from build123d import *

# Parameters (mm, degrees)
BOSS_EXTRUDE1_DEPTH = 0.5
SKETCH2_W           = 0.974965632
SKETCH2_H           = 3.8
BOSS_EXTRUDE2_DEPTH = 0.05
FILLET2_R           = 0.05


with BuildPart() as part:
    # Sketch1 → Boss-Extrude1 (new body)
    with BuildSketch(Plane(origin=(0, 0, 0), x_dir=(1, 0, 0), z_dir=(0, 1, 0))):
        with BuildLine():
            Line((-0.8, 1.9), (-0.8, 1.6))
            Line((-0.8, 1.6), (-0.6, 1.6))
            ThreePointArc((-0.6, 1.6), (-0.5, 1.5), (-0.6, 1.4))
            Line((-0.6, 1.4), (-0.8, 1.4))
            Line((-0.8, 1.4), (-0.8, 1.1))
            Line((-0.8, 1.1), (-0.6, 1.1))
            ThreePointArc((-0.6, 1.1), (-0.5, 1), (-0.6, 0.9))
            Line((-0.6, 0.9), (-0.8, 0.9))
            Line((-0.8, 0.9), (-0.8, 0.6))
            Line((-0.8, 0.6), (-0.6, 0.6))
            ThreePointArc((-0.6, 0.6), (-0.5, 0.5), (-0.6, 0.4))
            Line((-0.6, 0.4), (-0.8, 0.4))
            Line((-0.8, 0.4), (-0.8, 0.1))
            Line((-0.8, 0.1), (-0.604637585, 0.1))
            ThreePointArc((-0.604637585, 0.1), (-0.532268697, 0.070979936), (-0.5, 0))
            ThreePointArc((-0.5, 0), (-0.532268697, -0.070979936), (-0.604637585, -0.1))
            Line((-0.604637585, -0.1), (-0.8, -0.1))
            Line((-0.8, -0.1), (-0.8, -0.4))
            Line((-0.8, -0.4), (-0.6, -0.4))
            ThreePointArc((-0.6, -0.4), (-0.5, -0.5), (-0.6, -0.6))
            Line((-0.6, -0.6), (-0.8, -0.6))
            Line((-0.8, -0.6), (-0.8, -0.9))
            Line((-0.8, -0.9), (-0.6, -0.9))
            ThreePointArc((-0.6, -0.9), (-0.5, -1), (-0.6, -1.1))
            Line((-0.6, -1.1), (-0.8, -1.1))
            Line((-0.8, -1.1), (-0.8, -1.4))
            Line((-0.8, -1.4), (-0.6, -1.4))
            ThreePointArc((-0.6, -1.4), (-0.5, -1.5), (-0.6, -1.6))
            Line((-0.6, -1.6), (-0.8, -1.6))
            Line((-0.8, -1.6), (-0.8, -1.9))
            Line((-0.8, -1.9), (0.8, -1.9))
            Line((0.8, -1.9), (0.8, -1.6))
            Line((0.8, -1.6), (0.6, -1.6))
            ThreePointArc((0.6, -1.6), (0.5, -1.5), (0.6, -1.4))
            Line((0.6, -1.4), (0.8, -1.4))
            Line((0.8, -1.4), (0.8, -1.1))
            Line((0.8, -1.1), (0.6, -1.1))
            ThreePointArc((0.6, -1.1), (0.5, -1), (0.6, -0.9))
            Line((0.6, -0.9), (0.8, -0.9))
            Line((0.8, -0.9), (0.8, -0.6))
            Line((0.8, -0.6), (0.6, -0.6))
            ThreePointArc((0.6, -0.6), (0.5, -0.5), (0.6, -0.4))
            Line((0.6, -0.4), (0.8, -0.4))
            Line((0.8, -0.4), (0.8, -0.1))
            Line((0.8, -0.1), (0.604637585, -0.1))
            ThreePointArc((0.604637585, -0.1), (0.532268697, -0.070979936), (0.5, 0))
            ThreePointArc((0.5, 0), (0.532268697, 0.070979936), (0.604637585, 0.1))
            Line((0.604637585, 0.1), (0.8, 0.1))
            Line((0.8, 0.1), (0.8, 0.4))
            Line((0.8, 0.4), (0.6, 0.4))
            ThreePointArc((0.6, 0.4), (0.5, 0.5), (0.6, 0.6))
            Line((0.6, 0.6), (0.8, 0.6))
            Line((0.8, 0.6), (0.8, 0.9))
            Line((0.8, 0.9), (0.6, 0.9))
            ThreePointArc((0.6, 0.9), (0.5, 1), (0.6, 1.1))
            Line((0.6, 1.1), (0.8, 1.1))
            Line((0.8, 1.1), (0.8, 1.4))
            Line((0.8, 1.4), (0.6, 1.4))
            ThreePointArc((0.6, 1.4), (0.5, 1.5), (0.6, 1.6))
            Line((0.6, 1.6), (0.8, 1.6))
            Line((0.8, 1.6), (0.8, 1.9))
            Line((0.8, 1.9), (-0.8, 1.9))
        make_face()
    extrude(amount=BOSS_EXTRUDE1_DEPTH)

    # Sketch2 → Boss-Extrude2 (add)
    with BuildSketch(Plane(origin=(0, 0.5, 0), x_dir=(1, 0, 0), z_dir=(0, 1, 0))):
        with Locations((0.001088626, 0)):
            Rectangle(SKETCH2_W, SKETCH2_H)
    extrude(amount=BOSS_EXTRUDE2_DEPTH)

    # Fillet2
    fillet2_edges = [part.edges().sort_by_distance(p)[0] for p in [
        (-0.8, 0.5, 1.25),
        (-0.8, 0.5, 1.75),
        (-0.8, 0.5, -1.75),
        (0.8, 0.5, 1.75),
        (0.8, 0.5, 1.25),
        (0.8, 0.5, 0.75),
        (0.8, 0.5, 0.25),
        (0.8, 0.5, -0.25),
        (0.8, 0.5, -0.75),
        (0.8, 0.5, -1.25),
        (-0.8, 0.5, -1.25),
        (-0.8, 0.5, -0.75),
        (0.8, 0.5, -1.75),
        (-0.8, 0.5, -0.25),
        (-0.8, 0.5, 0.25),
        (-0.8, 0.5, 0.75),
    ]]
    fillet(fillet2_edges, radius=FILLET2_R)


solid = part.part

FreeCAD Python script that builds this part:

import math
import FreeCAD as App
import Part
import Sketcher


def edges_at(feature, points):
    """Names of the edges that pass closest to the given points."""
    edges = feature.Shape.Edges
    near = lambda p: min(range(len(edges)), key=lambda i: edges[i].distToShape(Part.Vertex(*p))[0])
    return sorted({f"Edge{near(p) + 1}" for p in points})


def add_polygon(sketch, points):
    """Adds a closed chain of lines whose ends are joined by coincident constraints."""
    first, n = sketch.GeometryCount, len(points)
    for a, b in zip(points, points[1:] + points[:1]):
        sketch.addGeometry(Part.LineSegment(App.Vector(*a, 0), App.Vector(*b, 0)), False)
    for i in range(n):
        sketch.addConstraint(Sketcher.Constraint("Coincident", first + i, 2, first + (i + 1) % n, 1))

doc = App.newDocument("Part")
body = doc.addObject("PartDesign::Body", "Body")

# Sketch on XZ plane
sketch1 = body.newObject("Sketcher::SketchObject", "Sketch")
sketch1.AttachmentSupport = (doc.getObject("XZ_Plane"), [""])
sketch1.MapMode = "FlatFace"
sketch1.addGeometry(Part.LineSegment(App.Vector(-0.8, -1.9, 0), App.Vector(-0.8, -1.6, 0)), False)
sketch1.addGeometry(Part.LineSegment(App.Vector(-0.8, -1.6, 0), App.Vector(-0.6, -1.6, 0)), False)
sketch1.addGeometry(Part.ArcOfCircle(Part.Circle(App.Vector(-0.6, -1.5, 0), App.Vector(0, 0, 1), 0.1), math.radians(-90), math.radians(90)), False)
sketch1.addGeometry(Part.LineSegment(App.Vector(-0.6, -1.4, 0), App.Vector(-0.8, -1.4, 0)), False)
sketch1.addGeometry(Part.LineSegment(App.Vector(-0.8, -1.4, 0), App.Vector(-0.8, -1.1, 0)), False)
sketch1.addGeometry(Part.LineSegment(App.Vector(-0.8, -1.1, 0), App.Vector(-0.6, -1.1, 0)), False)
sketch1.addGeometry(Part.ArcOfCircle(Part.Circle(App.Vector(-0.6, -1, 0), App.Vector(0, 0, 1), 0.1), math.radians(-90), math.radians(90)), False)
sketch1.addGeometry(Part.LineSegment(App.Vector(-0.6, -0.9, 0), App.Vector(-0.8, -0.9, 0)), False)
sketch1.addGeometry(Part.LineSegment(App.Vector(-0.8, -0.9, 0), App.Vector(-0.8, -0.6, 0)), False)
sketch1.addGeometry(Part.LineSegment(App.Vector(-0.8, -0.6, 0), App.Vector(-0.6, -0.6, 0)), False)
sketch1.addGeometry(Part.ArcOfCircle(Part.Circle(App.Vector(-0.6, -0.5, 0), App.Vector(0, 0, 1), 0.1), math.radians(-90), math.radians(90)), False)
sketch1.addGeometry(Part.LineSegment(App.Vector(-0.6, -0.4, 0), App.Vector(-0.8, -0.4, 0)), False)
sketch1.addGeometry(Part.LineSegment(App.Vector(-0.8, -0.4, 0), App.Vector(-0.8, -0.1, 0)), False)
sketch1.addGeometry(Part.LineSegment(App.Vector(-0.8, -0.1, 0), App.Vector(-0.604638, -0.1, 0)), False)
sketch1.addGeometry(Part.ArcOfCircle(Part.Circle(App.Vector(-0.604638, 0.004745, 0), App.Vector(0, 0, 1), 0.104745), math.radians(-89.999999), math.radians(-2.59648)), False)
sketch1.addGeometry(Part.ArcOfCircle(Part.Circle(App.Vector(-0.604638, -0.004745, 0), App.Vector(0, 0, 1), 0.104745), math.radians(2.59648), math.radians(89.999999)), False)
sketch1.addGeometry(Part.LineSegment(App.Vector(-0.604638, 0.1, 0), App.Vector(-0.8, 0.1, 0)), False)
sketch1.addGeometry(Part.LineSegment(App.Vector(-0.8, 0.1, 0), App.Vector(-0.8, 0.4, 0)), False)
sketch1.addGeometry(Part.LineSegment(App.Vector(-0.8, 0.4, 0), App.Vector(-0.6, 0.4, 0)), False)
sketch1.addGeometry(Part.ArcOfCircle(Part.Circle(App.Vector(-0.6, 0.5, 0), App.Vector(0, 0, 1), 0.1), math.radians(-90), math.radians(90)), False)
sketch1.addGeometry(Part.LineSegment(App.Vector(-0.6, 0.6, 0), App.Vector(-0.8, 0.6, 0)), False)
sketch1.addGeometry(Part.LineSegment(App.Vector(-0.8, 0.6, 0), App.Vector(-0.8, 0.9, 0)), False)
sketch1.addGeometry(Part.LineSegment(App.Vector(-0.8, 0.9, 0), App.Vector(-0.6, 0.9, 0)), False)
sketch1.addGeometry(Part.ArcOfCircle(Part.Circle(App.Vector(-0.6, 1, 0), App.Vector(0, 0, 1), 0.1), math.radians(-90), math.radians(90)), False)
sketch1.addGeometry(Part.LineSegment(App.Vector(-0.6, 1.1, 0), App.Vector(-0.8, 1.1, 0)), False)
sketch1.addGeometry(Part.LineSegment(App.Vector(-0.8, 1.1, 0), App.Vector(-0.8, 1.4, 0)), False)
sketch1.addGeometry(Part.LineSegment(App.Vector(-0.8, 1.4, 0), App.Vector(-0.6, 1.4, 0)), False)
sketch1.addGeometry(Part.ArcOfCircle(Part.Circle(App.Vector(-0.6, 1.5, 0), App.Vector(0, 0, 1), 0.1), math.radians(-90), math.radians(90)), False)
sketch1.addGeometry(Part.LineSegment(App.Vector(-0.6, 1.6, 0), App.Vector(-0.8, 1.6, 0)), False)
sketch1.addGeometry(Part.LineSegment(App.Vector(-0.8, 1.6, 0), App.Vector(-0.8, 1.9, 0)), False)
sketch1.addGeometry(Part.LineSegment(App.Vector(-0.8, 1.9, 0), App.Vector(0.8, 1.9, 0)), False)
sketch1.addGeometry(Part.LineSegment(App.Vector(0.8, 1.9, 0), App.Vector(0.8, 1.6, 0)), False)
sketch1.addGeometry(Part.LineSegment(App.Vector(0.8, 1.6, 0), App.Vector(0.6, 1.6, 0)), False)
sketch1.addGeometry(Part.ArcOfCircle(Part.Circle(App.Vector(0.6, 1.5, 0), App.Vector(0, 0, 1), 0.1), math.radians(90), math.radians(270)), False)
sketch1.addGeometry(Part.LineSegment(App.Vector(0.6, 1.4, 0), App.Vector(0.8, 1.4, 0)), False)
sketch1.addGeometry(Part.LineSegment(App.Vector(0.8, 1.4, 0), App.Vector(0.8, 1.1, 0)), False)
sketch1.addGeometry(Part.LineSegment(App.Vector(0.8, 1.1, 0), App.Vector(0.6, 1.1, 0)), False)
sketch1.addGeometry(Part.ArcOfCircle(Part.Circle(App.Vector(0.6, 1, 0), App.Vector(0, 0, 1), 0.1), math.radians(90), math.radians(270)), False)
sketch1.addGeometry(Part.LineSegment(App.Vector(0.6, 0.9, 0), App.Vector(0.8, 0.9, 0)), False)
sketch1.addGeometry(Part.LineSegment(App.Vector(0.8, 0.9, 0), App.Vector(0.8, 0.6, 0)), False)
sketch1.addGeometry(Part.LineSegment(App.Vector(0.8, 0.6, 0), App.Vector(0.6, 0.6, 0)), False)
sketch1.addGeometry(Part.ArcOfCircle(Part.Circle(App.Vector(0.6, 0.5, 0), App.Vector(0, 0, 1), 0.1), math.radians(90), math.radians(270)), False)
sketch1.addGeometry(Part.LineSegment(App.Vector(0.6, 0.4, 0), App.Vector(0.8, 0.4, 0)), False)
sketch1.addGeometry(Part.LineSegment(App.Vector(0.8, 0.4, 0), App.Vector(0.8, 0.1, 0)), False)
sketch1.addGeometry(Part.LineSegment(App.Vector(0.8, 0.1, 0), App.Vector(0.604638, 0.1, 0)), False)
sketch1.addGeometry(Part.ArcOfCircle(Part.Circle(App.Vector(0.604638, -0.004745, 0), App.Vector(0, 0, 1), 0.104745), math.radians(90.000001), math.radians(177.40352)), False)
sketch1.addGeometry(Part.ArcOfCircle(Part.Circle(App.Vector(0.604638, 0.004745, 0), App.Vector(0, 0, 1), 0.104745), math.radians(-177.40352), math.radians(-90.000001)), False)
sketch1.addGeometry(Part.LineSegment(App.Vector(0.604638, -0.1, 0), App.Vector(0.8, -0.1, 0)), False)
sketch1.addGeometry(Part.LineSegment(App.Vector(0.8, -0.1, 0), App.Vector(0.8, -0.4, 0)), False)
sketch1.addGeometry(Part.LineSegment(App.Vector(0.8, -0.4, 0), App.Vector(0.6, -0.4, 0)), False)
sketch1.addGeometry(Part.ArcOfCircle(Part.Circle(App.Vector(0.6, -0.5, 0), App.Vector(0, 0, 1), 0.1), math.radians(90), math.radians(270)), False)
sketch1.addGeometry(Part.LineSegment(App.Vector(0.6, -0.6, 0), App.Vector(0.8, -0.6, 0)), False)
sketch1.addGeometry(Part.LineSegment(App.Vector(0.8, -0.6, 0), App.Vector(0.8, -0.9, 0)), False)
sketch1.addGeometry(Part.LineSegment(App.Vector(0.8, -0.9, 0), App.Vector(0.6, -0.9, 0)), False)
sketch1.addGeometry(Part.ArcOfCircle(Part.Circle(App.Vector(0.6, -1, 0), App.Vector(0, 0, 1), 0.1), math.radians(90), math.radians(270)), False)
sketch1.addGeometry(Part.LineSegment(App.Vector(0.6, -1.1, 0), App.Vector(0.8, -1.1, 0)), False)
sketch1.addGeometry(Part.LineSegment(App.Vector(0.8, -1.1, 0), App.Vector(0.8, -1.4, 0)), False)
sketch1.addGeometry(Part.LineSegment(App.Vector(0.8, -1.4, 0), App.Vector(0.6, -1.4, 0)), False)
sketch1.addGeometry(Part.ArcOfCircle(Part.Circle(App.Vector(0.6, -1.5, 0), App.Vector(0, 0, 1), 0.1), math.radians(90), math.radians(270)), False)
sketch1.addGeometry(Part.LineSegment(App.Vector(0.6, -1.6, 0), App.Vector(0.8, -1.6, 0)), False)
sketch1.addGeometry(Part.LineSegment(App.Vector(0.8, -1.6, 0), App.Vector(0.8, -1.9, 0)), False)
sketch1.addGeometry(Part.LineSegment(App.Vector(0.8, -1.9, 0), App.Vector(-0.8, -1.9, 0)), False)
sketch1.addConstraint(Sketcher.Constraint("Coincident", 0, 2, 1, 1))
sketch1.addConstraint(Sketcher.Constraint("Tangent", 1, 2, 2, 1))
sketch1.addConstraint(Sketcher.Constraint("Tangent", 2, 2, 3, 1))
sketch1.addConstraint(Sketcher.Constraint("Coincident", 3, 2, 4, 1))
sketch1.addConstraint(Sketcher.Constraint("Coincident", 4, 2, 5, 1))
sketch1.addConstraint(Sketcher.Constraint("Tangent", 5, 2, 6, 1))
sketch1.addConstraint(Sketcher.Constraint("Tangent", 6, 2, 7, 1))
sketch1.addConstraint(Sketcher.Constraint("Coincident", 7, 2, 8, 1))
sketch1.addConstraint(Sketcher.Constraint("Coincident", 8, 2, 9, 1))
sketch1.addConstraint(Sketcher.Constraint("Tangent", 9, 2, 10, 1))
sketch1.addConstraint(Sketcher.Constraint("Tangent", 10, 2, 11, 1))
sketch1.addConstraint(Sketcher.Constraint("Coincident", 11, 2, 12, 1))
sketch1.addConstraint(Sketcher.Constraint("Coincident", 12, 2, 13, 1))
sketch1.addConstraint(Sketcher.Constraint("Tangent", 13, 2, 14, 1))
sketch1.addConstraint(Sketcher.Constraint("Coincident", 14, 2, 15, 1))
sketch1.addConstraint(Sketcher.Constraint("Tangent", 15, 2, 16, 1))
sketch1.addConstraint(Sketcher.Constraint("Coincident", 16, 2, 17, 1))
sketch1.addConstraint(Sketcher.Constraint("Coincident", 17, 2, 18, 1))
sketch1.addConstraint(Sketcher.Constraint("Tangent", 18, 2, 19, 1))
sketch1.addConstraint(Sketcher.Constraint("Tangent", 19, 2, 20, 1))
sketch1.addConstraint(Sketcher.Constraint("Coincident", 20, 2, 21, 1))
sketch1.addConstraint(Sketcher.Constraint("Coincident", 21, 2, 22, 1))
sketch1.addConstraint(Sketcher.Constraint("Tangent", 22, 2, 23, 1))
sketch1.addConstraint(Sketcher.Constraint("Tangent", 23, 2, 24, 1))
sketch1.addConstraint(Sketcher.Constraint("Coincident", 24, 2, 25, 1))
sketch1.addConstraint(Sketcher.Constraint("Coincident", 25, 2, 26, 1))
sketch1.addConstraint(Sketcher.Constraint("Tangent", 26, 2, 27, 1))
sketch1.addConstraint(Sketcher.Constraint("Tangent", 27, 2, 28, 1))
sketch1.addConstraint(Sketcher.Constraint("Coincident", 28, 2, 29, 1))
sketch1.addConstraint(Sketcher.Constraint("Coincident", 29, 2, 30, 1))
sketch1.addConstraint(Sketcher.Constraint("Coincident", 30, 2, 31, 1))
sketch1.addConstraint(Sketcher.Constraint("Coincident", 31, 2, 32, 1))
sketch1.addConstraint(Sketcher.Constraint("Tangent", 32, 2, 33, 1))
sketch1.addConstraint(Sketcher.Constraint("Tangent", 33, 2, 34, 1))
sketch1.addConstraint(Sketcher.Constraint("Coincident", 34, 2, 35, 1))
sketch1.addConstraint(Sketcher.Constraint("Coincident", 35, 2, 36, 1))
sketch1.addConstraint(Sketcher.Constraint("Tangent", 36, 2, 37, 1))
sketch1.addConstraint(Sketcher.Constraint("Tangent", 37, 2, 38, 1))
sketch1.addConstraint(Sketcher.Constraint("Coincident", 38, 2, 39, 1))
sketch1.addConstraint(Sketcher.Constraint("Coincident", 39, 2, 40, 1))
sketch1.addConstraint(Sketcher.Constraint("Tangent", 40, 2, 41, 1))
sketch1.addConstraint(Sketcher.Constraint("Tangent", 41, 2, 42, 1))
sketch1.addConstraint(Sketcher.Constraint("Coincident", 42, 2, 43, 1))
sketch1.addConstraint(Sketcher.Constraint("Coincident", 43, 2, 44, 1))
sketch1.addConstraint(Sketcher.Constraint("Tangent", 44, 2, 45, 1))
sketch1.addConstraint(Sketcher.Constraint("Coincident", 45, 2, 46, 1))
sketch1.addConstraint(Sketcher.Constraint("Tangent", 46, 2, 47, 1))
sketch1.addConstraint(Sketcher.Constraint("Coincident", 47, 2, 48, 1))
sketch1.addConstraint(Sketcher.Constraint("Coincident", 48, 2, 49, 1))
sketch1.addConstraint(Sketcher.Constraint("Tangent", 49, 2, 50, 1))
sketch1.addConstraint(Sketcher.Constraint("Tangent", 50, 2, 51, 1))
sketch1.addConstraint(Sketcher.Constraint("Coincident", 51, 2, 52, 1))
sketch1.addConstraint(Sketcher.Constraint("Coincident", 52, 2, 53, 1))
sketch1.addConstraint(Sketcher.Constraint("Tangent", 53, 2, 54, 1))
sketch1.addConstraint(Sketcher.Constraint("Tangent", 54, 2, 55, 1))
sketch1.addConstraint(Sketcher.Constraint("Coincident", 55, 2, 56, 1))
sketch1.addConstraint(Sketcher.Constraint("Coincident", 56, 2, 57, 1))
sketch1.addConstraint(Sketcher.Constraint("Tangent", 57, 2, 58, 1))
sketch1.addConstraint(Sketcher.Constraint("Tangent", 58, 2, 59, 1))
sketch1.addConstraint(Sketcher.Constraint("Coincident", 59, 2, 60, 1))
sketch1.addConstraint(Sketcher.Constraint("Coincident", 60, 2, 61, 1))
sketch1.addConstraint(Sketcher.Constraint("Coincident", 61, 2, 0, 1))
sketch1.addConstraint(Sketcher.Constraint("Vertical", 0))
sketch1.addConstraint(Sketcher.Constraint("Horizontal", 1))
sketch1.addConstraint(Sketcher.Constraint("Horizontal", 3))
sketch1.addConstraint(Sketcher.Constraint("Vertical", 4))
sketch1.addConstraint(Sketcher.Constraint("Horizontal", 5))
sketch1.addConstraint(Sketcher.Constraint("Horizontal", 7))
sketch1.addConstraint(Sketcher.Constraint("Vertical", 8))
sketch1.addConstraint(Sketcher.Constraint("Horizontal", 9))
sketch1.addConstraint(Sketcher.Constraint("Horizontal", 11))
sketch1.addConstraint(Sketcher.Constraint("Vertical", 12))
sketch1.addConstraint(Sketcher.Constraint("Horizontal", 13))
sketch1.addConstraint(Sketcher.Constraint("Horizontal", 16))
sketch1.addConstraint(Sketcher.Constraint("Vertical", 17))
sketch1.addConstraint(Sketcher.Constraint("Horizontal", 18))
sketch1.addConstraint(Sketcher.Constraint("Horizontal", 20))
sketch1.addConstraint(Sketcher.Constraint("Vertical", 21))
sketch1.addConstraint(Sketcher.Constraint("Horizontal", 22))
sketch1.addConstraint(Sketcher.Constraint("Horizontal", 24))
sketch1.addConstraint(Sketcher.Constraint("Vertical", 25))
sketch1.addConstraint(Sketcher.Constraint("Horizontal", 26))
sketch1.addConstraint(Sketcher.Constraint("Horizontal", 28))
sketch1.addConstraint(Sketcher.Constraint("Vertical", 29))
sketch1.addConstraint(Sketcher.Constraint("Horizontal", 30))
sketch1.addConstraint(Sketcher.Constraint("Vertical", 31))
sketch1.addConstraint(Sketcher.Constraint("Horizontal", 32))
sketch1.addConstraint(Sketcher.Constraint("Horizontal", 34))
sketch1.addConstraint(Sketcher.Constraint("Vertical", 35))
sketch1.addConstraint(Sketcher.Constraint("Horizontal", 36))
sketch1.addConstraint(Sketcher.Constraint("Horizontal", 38))
sketch1.addConstraint(Sketcher.Constraint("Vertical", 39))
sketch1.addConstraint(Sketcher.Constraint("Horizontal", 40))
sketch1.addConstraint(Sketcher.Constraint("Horizontal", 42))
sketch1.addConstraint(Sketcher.Constraint("Vertical", 43))
sketch1.addConstraint(Sketcher.Constraint("Horizontal", 44))
sketch1.addConstraint(Sketcher.Constraint("Horizontal", 47))
sketch1.addConstraint(Sketcher.Constraint("Vertical", 48))
sketch1.addConstraint(Sketcher.Constraint("Horizontal", 49))
sketch1.addConstraint(Sketcher.Constraint("Horizontal", 51))
sketch1.addConstraint(Sketcher.Constraint("Vertical", 52))
sketch1.addConstraint(Sketcher.Constraint("Horizontal", 53))
sketch1.addConstraint(Sketcher.Constraint("Horizontal", 55))
sketch1.addConstraint(Sketcher.Constraint("Vertical", 56))
sketch1.addConstraint(Sketcher.Constraint("Horizontal", 57))
sketch1.addConstraint(Sketcher.Constraint("Horizontal", 59))
sketch1.addConstraint(Sketcher.Constraint("Vertical", 60))
sketch1.addConstraint(Sketcher.Constraint("Horizontal", 61))
sketch1.addConstraint(Sketcher.Constraint("Equal", 2, 6))
sketch1.addConstraint(Sketcher.Constraint("Equal", 6, 10))
sketch1.addConstraint(Sketcher.Constraint("Equal", 14, 15))
sketch1.addConstraint(Sketcher.Constraint("Equal", 10, 19))
sketch1.addConstraint(Sketcher.Constraint("Equal", 19, 23))
sketch1.addConstraint(Sketcher.Constraint("Equal", 23, 27))
sketch1.addConstraint(Sketcher.Constraint("Equal", 27, 33))
sketch1.addConstraint(Sketcher.Constraint("Equal", 33, 37))
sketch1.addConstraint(Sketcher.Constraint("Equal", 37, 41))
sketch1.addConstraint(Sketcher.Constraint("Equal", 15, 45))
sketch1.addConstraint(Sketcher.Constraint("Equal", 45, 46))
sketch1.addConstraint(Sketcher.Constraint("Equal", 41, 50))
sketch1.addConstraint(Sketcher.Constraint("Equal", 50, 54))
sketch1.addConstraint(Sketcher.Constraint("Equal", 54, 58))
sketch1.addConstraint(Sketcher.Constraint("Symmetric", 2, 3, 33, 3, -1, 1))
sketch1.addConstraint(Sketcher.Constraint("Symmetric", 6, 3, 37, 3, -1, 1))
sketch1.addConstraint(Sketcher.Constraint("Symmetric", 10, 3, 41, 3, -1, 1))
sketch1.addConstraint(Sketcher.Constraint("Symmetric", 14, 3, 45, 3, -1, 1))
sketch1.addConstraint(Sketcher.Constraint("Symmetric", 15, 3, 46, 3, -1, 1))
sketch1.addConstraint(Sketcher.Constraint("Symmetric", 19, 3, 50, 3, -1, 1))
sketch1.addConstraint(Sketcher.Constraint("Symmetric", 23, 3, 54, 3, -1, 1))
sketch1.addConstraint(Sketcher.Constraint("Symmetric", 27, 3, 58, 3, -1, 1))
sketch1.addConstraint(Sketcher.Constraint("Symmetric", 29, 2, 60, 2, -1, 1))
sketch1.addConstraint(Sketcher.Constraint("Symmetric", 27, 3, 33, 3, -2))
sketch1.addConstraint(Sketcher.Constraint("Symmetric", 23, 3, 37, 3, -2))
sketch1.addConstraint(Sketcher.Constraint("Symmetric", 19, 3, 41, 3, -2))
sketch1.addConstraint(Sketcher.Constraint("Symmetric", 15, 3, 45, 3, -2))
sketch1.addConstraint(Sketcher.Constraint("Vertical", 2, 3, 6, 3))
sketch1.addConstraint(Sketcher.Constraint("Vertical", 6, 3, 10, 3))
sketch1.addConstraint(Sketcher.Constraint("Vertical", 0, 2, 3, 2))
sketch1.addConstraint(Sketcher.Constraint("Vertical", 4, 2, 7, 2))
sketch1.addConstraint(Sketcher.Constraint("Vertical", 8, 2, 11, 2))
sketch1.addConstraint(Sketcher.Constraint("Vertical", 12, 2, 16, 2))
sketch1.addConstraint(Sketcher.Constraint("Vertical", 17, 2, 20, 2))
sketch1.addConstraint(Sketcher.Constraint("Vertical", 21, 2, 24, 2))
sketch1.addConstraint(Sketcher.Constraint("Vertical", 25, 2, 28, 2))
sketch1.addConstraint(Sketcher.Constraint("Vertical", 31, 2, 34, 2))
sketch1.addConstraint(Sketcher.Constraint("Vertical", 35, 2, 38, 2))
sketch1.addConstraint(Sketcher.Constraint("Vertical", 39, 2, 42, 2))
sketch1.addConstraint(Sketcher.Constraint("Vertical", 43, 2, 47, 2))
sketch1.addConstraint(Sketcher.Constraint("Vertical", 48, 2, 51, 2))
sketch1.addConstraint(Sketcher.Constraint("Vertical", 52, 2, 55, 2))
sketch1.addConstraint(Sketcher.Constraint("Vertical", 56, 2, 59, 2))
sketch1.addConstraint(Sketcher.Constraint("Equal", 0, 4))
sketch1.addConstraint(Sketcher.Constraint("Equal", 4, 8))
sketch1.addConstraint(Sketcher.Constraint("Equal", 8, 12))
sketch1.addConstraint(Sketcher.Constraint("Radius", 2, 0.1))
sketch1.addConstraint(Sketcher.Constraint("DistanceX", 1, 1, 1, 2, 0.2))
sketch1.addConstraint(Sketcher.Constraint("DistanceX", 30, 1, 30, 2, 1.6))
sketch1.addConstraint(Sketcher.Constraint("DistanceY", 0, 1, 0, 2, 0.3))
sketch1.addConstraint(Sketcher.Constraint("DistanceY", 6, 3, -1, 1, 1.0))
sketch1.addConstraint(Sketcher.Constraint("DistanceX", 14, 2, -1, 1, 0.5))
sketch1.addConstraint(Sketcher.Constraint("Radius", 14, 0.104745))
pad1 = body.newObject("PartDesign::Pad", "Pad")
pad1.Profile = sketch1
pad1.Length = 0.5
pad1.Reversed = True

# Sketch on XZ plane
sketch2 = body.newObject("Sketcher::SketchObject", "Sketch001")
sketch2.AttachmentSupport = (doc.getObject("XZ_Plane"), [""])
sketch2.MapMode = "FlatFace"
sketch2.AttachmentOffset = App.Placement(App.Vector(0, 0, -0.5), App.Rotation())
add_polygon(sketch2, [(-0.486394, -1.9), (-0.486394, 1.9), (0.488571, 1.9), (0.488571, -1.9)])  # lines 0-3
sketch2.addConstraint(Sketcher.Constraint("Vertical", 0))
sketch2.addConstraint(Sketcher.Constraint("Horizontal", 1))
sketch2.addConstraint(Sketcher.Constraint("Vertical", 2))
sketch2.addConstraint(Sketcher.Constraint("Horizontal", 3))
sketch2.addConstraint(Sketcher.Constraint("DistanceY", 0, 1, 0, 2, 3.8))
sketch2.addConstraint(Sketcher.Constraint("DistanceY", -1, 1, 0, 2, 1.9))
sketch2.addConstraint(Sketcher.Constraint("DistanceX", 1, 1, 1, 2, 0.974966))
sketch2.addConstraint(Sketcher.Constraint("DistanceX", -1, 1, 1, 2, 0.488571))
pad2 = body.newObject("PartDesign::Pad", "Pad001")
pad2.Profile = sketch2
pad2.Length = 0.05
pad2.Reversed = True
doc.recompute()

fillet = body.newObject("PartDesign::Fillet", "Fillet")
fillet.Base = (pad2, edges_at(pad2, [
    (-0.8, 0.5, 1.25),
    (-0.8, 0.5, 1.75),
    (-0.8, 0.5, -1.75),
    (0.8, 0.5, 1.75),
    (0.8, 0.5, 1.25),
    (0.8, 0.5, 0.75),
    (0.8, 0.5, 0.25),
    (0.8, 0.5, -0.25),
    (0.8, 0.5, -0.75),
    (0.8, 0.5, -1.25),
    (-0.8, 0.5, -1.25),
    (-0.8, 0.5, -0.75),
    (0.8, 0.5, -1.75),
    (-0.8, 0.5, -0.25),
    (-0.8, 0.5, 0.25),
    (-0.8, 0.5, 0.75),
]))
fillet.Radius = 0.05

doc.recompute()
